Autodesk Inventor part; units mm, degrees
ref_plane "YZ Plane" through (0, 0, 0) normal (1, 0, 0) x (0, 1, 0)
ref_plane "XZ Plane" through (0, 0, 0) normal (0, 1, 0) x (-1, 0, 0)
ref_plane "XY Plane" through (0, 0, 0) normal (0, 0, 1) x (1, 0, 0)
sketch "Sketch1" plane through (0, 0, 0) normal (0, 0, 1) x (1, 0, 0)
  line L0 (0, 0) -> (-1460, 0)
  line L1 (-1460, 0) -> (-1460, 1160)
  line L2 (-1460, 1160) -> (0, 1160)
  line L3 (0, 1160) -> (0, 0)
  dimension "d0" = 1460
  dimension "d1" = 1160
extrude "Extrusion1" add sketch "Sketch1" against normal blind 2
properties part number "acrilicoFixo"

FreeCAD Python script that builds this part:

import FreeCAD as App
import Part
import Sketcher

V = App.Vector
Q = App.Units.Quantity

doc = App.newDocument("Part")
params = doc.addObject("Spreadsheet::Sheet", "Params")
for row, (alias, value) in enumerate([
    ("sketch1_width", "1460 mm"),
    ("sketch1_height", "1160 mm"),
    ("pad1_length", "2 mm"),
], start=1):
    params.set(f"A{row}", alias)
    params.set(f"B{row}", "=" + value)
    params.setAlias(f"B{row}", alias)

body = doc.addObject("PartDesign::Body", "Body")

sketch1 = doc.addObject("Sketcher::SketchObject", "Sketch")
body.addObject(sketch1)
sketch1.AttachmentSupport = (doc.XY_Plane, [""])
sketch1.MapMode = "FlatFace"
sketch1.addGeometry([
    Part.LineSegment(V(-1460, 0, 0), V(0, 0, 0)),
    Part.LineSegment(V(0, 0, 0), V(0, 1160, 0)),
    Part.LineSegment(V(0, 1160, 0), V(-1460, 1160, 0)),
    Part.LineSegment(V(-1460, 1160, 0), V(-1460, 0, 0)),
], False)
sketch1.addConstraint([
    Sketcher.Constraint("Coincident", 0, 2, 1, 1),
    Sketcher.Constraint("Coincident", 1, 2, 2, 1),
    Sketcher.Constraint("Coincident", 2, 2, 3, 1),
    Sketcher.Constraint("Coincident", 3, 2, 0, 1),
    Sketcher.Constraint("Horizontal", 0),
    Sketcher.Constraint("Vertical", 1),
    Sketcher.Constraint("Horizontal", 2),
    Sketcher.Constraint("Vertical", 3),
    Sketcher.Constraint("Coincident", 0, 2, -1, 1),
    Sketcher.Constraint("DistanceX", 0, 1, 0, 2, Q("1460 mm")),
    Sketcher.Constraint("DistanceY", 1, 1, 1, 2, Q("1160 mm")),
])
sketch1.setExpression("Constraints[9]", "Params.sketch1_width")
sketch1.setExpression("Constraints[10]", "Params.sketch1_height")
pad1 = doc.addObject("PartDesign::Pad", "Pad")
body.addObject(pad1)
pad1.Profile = sketch1
pad1.setExpression("Length", "Params.pad1_length")
pad1.Reversed = True

doc.recompute()
